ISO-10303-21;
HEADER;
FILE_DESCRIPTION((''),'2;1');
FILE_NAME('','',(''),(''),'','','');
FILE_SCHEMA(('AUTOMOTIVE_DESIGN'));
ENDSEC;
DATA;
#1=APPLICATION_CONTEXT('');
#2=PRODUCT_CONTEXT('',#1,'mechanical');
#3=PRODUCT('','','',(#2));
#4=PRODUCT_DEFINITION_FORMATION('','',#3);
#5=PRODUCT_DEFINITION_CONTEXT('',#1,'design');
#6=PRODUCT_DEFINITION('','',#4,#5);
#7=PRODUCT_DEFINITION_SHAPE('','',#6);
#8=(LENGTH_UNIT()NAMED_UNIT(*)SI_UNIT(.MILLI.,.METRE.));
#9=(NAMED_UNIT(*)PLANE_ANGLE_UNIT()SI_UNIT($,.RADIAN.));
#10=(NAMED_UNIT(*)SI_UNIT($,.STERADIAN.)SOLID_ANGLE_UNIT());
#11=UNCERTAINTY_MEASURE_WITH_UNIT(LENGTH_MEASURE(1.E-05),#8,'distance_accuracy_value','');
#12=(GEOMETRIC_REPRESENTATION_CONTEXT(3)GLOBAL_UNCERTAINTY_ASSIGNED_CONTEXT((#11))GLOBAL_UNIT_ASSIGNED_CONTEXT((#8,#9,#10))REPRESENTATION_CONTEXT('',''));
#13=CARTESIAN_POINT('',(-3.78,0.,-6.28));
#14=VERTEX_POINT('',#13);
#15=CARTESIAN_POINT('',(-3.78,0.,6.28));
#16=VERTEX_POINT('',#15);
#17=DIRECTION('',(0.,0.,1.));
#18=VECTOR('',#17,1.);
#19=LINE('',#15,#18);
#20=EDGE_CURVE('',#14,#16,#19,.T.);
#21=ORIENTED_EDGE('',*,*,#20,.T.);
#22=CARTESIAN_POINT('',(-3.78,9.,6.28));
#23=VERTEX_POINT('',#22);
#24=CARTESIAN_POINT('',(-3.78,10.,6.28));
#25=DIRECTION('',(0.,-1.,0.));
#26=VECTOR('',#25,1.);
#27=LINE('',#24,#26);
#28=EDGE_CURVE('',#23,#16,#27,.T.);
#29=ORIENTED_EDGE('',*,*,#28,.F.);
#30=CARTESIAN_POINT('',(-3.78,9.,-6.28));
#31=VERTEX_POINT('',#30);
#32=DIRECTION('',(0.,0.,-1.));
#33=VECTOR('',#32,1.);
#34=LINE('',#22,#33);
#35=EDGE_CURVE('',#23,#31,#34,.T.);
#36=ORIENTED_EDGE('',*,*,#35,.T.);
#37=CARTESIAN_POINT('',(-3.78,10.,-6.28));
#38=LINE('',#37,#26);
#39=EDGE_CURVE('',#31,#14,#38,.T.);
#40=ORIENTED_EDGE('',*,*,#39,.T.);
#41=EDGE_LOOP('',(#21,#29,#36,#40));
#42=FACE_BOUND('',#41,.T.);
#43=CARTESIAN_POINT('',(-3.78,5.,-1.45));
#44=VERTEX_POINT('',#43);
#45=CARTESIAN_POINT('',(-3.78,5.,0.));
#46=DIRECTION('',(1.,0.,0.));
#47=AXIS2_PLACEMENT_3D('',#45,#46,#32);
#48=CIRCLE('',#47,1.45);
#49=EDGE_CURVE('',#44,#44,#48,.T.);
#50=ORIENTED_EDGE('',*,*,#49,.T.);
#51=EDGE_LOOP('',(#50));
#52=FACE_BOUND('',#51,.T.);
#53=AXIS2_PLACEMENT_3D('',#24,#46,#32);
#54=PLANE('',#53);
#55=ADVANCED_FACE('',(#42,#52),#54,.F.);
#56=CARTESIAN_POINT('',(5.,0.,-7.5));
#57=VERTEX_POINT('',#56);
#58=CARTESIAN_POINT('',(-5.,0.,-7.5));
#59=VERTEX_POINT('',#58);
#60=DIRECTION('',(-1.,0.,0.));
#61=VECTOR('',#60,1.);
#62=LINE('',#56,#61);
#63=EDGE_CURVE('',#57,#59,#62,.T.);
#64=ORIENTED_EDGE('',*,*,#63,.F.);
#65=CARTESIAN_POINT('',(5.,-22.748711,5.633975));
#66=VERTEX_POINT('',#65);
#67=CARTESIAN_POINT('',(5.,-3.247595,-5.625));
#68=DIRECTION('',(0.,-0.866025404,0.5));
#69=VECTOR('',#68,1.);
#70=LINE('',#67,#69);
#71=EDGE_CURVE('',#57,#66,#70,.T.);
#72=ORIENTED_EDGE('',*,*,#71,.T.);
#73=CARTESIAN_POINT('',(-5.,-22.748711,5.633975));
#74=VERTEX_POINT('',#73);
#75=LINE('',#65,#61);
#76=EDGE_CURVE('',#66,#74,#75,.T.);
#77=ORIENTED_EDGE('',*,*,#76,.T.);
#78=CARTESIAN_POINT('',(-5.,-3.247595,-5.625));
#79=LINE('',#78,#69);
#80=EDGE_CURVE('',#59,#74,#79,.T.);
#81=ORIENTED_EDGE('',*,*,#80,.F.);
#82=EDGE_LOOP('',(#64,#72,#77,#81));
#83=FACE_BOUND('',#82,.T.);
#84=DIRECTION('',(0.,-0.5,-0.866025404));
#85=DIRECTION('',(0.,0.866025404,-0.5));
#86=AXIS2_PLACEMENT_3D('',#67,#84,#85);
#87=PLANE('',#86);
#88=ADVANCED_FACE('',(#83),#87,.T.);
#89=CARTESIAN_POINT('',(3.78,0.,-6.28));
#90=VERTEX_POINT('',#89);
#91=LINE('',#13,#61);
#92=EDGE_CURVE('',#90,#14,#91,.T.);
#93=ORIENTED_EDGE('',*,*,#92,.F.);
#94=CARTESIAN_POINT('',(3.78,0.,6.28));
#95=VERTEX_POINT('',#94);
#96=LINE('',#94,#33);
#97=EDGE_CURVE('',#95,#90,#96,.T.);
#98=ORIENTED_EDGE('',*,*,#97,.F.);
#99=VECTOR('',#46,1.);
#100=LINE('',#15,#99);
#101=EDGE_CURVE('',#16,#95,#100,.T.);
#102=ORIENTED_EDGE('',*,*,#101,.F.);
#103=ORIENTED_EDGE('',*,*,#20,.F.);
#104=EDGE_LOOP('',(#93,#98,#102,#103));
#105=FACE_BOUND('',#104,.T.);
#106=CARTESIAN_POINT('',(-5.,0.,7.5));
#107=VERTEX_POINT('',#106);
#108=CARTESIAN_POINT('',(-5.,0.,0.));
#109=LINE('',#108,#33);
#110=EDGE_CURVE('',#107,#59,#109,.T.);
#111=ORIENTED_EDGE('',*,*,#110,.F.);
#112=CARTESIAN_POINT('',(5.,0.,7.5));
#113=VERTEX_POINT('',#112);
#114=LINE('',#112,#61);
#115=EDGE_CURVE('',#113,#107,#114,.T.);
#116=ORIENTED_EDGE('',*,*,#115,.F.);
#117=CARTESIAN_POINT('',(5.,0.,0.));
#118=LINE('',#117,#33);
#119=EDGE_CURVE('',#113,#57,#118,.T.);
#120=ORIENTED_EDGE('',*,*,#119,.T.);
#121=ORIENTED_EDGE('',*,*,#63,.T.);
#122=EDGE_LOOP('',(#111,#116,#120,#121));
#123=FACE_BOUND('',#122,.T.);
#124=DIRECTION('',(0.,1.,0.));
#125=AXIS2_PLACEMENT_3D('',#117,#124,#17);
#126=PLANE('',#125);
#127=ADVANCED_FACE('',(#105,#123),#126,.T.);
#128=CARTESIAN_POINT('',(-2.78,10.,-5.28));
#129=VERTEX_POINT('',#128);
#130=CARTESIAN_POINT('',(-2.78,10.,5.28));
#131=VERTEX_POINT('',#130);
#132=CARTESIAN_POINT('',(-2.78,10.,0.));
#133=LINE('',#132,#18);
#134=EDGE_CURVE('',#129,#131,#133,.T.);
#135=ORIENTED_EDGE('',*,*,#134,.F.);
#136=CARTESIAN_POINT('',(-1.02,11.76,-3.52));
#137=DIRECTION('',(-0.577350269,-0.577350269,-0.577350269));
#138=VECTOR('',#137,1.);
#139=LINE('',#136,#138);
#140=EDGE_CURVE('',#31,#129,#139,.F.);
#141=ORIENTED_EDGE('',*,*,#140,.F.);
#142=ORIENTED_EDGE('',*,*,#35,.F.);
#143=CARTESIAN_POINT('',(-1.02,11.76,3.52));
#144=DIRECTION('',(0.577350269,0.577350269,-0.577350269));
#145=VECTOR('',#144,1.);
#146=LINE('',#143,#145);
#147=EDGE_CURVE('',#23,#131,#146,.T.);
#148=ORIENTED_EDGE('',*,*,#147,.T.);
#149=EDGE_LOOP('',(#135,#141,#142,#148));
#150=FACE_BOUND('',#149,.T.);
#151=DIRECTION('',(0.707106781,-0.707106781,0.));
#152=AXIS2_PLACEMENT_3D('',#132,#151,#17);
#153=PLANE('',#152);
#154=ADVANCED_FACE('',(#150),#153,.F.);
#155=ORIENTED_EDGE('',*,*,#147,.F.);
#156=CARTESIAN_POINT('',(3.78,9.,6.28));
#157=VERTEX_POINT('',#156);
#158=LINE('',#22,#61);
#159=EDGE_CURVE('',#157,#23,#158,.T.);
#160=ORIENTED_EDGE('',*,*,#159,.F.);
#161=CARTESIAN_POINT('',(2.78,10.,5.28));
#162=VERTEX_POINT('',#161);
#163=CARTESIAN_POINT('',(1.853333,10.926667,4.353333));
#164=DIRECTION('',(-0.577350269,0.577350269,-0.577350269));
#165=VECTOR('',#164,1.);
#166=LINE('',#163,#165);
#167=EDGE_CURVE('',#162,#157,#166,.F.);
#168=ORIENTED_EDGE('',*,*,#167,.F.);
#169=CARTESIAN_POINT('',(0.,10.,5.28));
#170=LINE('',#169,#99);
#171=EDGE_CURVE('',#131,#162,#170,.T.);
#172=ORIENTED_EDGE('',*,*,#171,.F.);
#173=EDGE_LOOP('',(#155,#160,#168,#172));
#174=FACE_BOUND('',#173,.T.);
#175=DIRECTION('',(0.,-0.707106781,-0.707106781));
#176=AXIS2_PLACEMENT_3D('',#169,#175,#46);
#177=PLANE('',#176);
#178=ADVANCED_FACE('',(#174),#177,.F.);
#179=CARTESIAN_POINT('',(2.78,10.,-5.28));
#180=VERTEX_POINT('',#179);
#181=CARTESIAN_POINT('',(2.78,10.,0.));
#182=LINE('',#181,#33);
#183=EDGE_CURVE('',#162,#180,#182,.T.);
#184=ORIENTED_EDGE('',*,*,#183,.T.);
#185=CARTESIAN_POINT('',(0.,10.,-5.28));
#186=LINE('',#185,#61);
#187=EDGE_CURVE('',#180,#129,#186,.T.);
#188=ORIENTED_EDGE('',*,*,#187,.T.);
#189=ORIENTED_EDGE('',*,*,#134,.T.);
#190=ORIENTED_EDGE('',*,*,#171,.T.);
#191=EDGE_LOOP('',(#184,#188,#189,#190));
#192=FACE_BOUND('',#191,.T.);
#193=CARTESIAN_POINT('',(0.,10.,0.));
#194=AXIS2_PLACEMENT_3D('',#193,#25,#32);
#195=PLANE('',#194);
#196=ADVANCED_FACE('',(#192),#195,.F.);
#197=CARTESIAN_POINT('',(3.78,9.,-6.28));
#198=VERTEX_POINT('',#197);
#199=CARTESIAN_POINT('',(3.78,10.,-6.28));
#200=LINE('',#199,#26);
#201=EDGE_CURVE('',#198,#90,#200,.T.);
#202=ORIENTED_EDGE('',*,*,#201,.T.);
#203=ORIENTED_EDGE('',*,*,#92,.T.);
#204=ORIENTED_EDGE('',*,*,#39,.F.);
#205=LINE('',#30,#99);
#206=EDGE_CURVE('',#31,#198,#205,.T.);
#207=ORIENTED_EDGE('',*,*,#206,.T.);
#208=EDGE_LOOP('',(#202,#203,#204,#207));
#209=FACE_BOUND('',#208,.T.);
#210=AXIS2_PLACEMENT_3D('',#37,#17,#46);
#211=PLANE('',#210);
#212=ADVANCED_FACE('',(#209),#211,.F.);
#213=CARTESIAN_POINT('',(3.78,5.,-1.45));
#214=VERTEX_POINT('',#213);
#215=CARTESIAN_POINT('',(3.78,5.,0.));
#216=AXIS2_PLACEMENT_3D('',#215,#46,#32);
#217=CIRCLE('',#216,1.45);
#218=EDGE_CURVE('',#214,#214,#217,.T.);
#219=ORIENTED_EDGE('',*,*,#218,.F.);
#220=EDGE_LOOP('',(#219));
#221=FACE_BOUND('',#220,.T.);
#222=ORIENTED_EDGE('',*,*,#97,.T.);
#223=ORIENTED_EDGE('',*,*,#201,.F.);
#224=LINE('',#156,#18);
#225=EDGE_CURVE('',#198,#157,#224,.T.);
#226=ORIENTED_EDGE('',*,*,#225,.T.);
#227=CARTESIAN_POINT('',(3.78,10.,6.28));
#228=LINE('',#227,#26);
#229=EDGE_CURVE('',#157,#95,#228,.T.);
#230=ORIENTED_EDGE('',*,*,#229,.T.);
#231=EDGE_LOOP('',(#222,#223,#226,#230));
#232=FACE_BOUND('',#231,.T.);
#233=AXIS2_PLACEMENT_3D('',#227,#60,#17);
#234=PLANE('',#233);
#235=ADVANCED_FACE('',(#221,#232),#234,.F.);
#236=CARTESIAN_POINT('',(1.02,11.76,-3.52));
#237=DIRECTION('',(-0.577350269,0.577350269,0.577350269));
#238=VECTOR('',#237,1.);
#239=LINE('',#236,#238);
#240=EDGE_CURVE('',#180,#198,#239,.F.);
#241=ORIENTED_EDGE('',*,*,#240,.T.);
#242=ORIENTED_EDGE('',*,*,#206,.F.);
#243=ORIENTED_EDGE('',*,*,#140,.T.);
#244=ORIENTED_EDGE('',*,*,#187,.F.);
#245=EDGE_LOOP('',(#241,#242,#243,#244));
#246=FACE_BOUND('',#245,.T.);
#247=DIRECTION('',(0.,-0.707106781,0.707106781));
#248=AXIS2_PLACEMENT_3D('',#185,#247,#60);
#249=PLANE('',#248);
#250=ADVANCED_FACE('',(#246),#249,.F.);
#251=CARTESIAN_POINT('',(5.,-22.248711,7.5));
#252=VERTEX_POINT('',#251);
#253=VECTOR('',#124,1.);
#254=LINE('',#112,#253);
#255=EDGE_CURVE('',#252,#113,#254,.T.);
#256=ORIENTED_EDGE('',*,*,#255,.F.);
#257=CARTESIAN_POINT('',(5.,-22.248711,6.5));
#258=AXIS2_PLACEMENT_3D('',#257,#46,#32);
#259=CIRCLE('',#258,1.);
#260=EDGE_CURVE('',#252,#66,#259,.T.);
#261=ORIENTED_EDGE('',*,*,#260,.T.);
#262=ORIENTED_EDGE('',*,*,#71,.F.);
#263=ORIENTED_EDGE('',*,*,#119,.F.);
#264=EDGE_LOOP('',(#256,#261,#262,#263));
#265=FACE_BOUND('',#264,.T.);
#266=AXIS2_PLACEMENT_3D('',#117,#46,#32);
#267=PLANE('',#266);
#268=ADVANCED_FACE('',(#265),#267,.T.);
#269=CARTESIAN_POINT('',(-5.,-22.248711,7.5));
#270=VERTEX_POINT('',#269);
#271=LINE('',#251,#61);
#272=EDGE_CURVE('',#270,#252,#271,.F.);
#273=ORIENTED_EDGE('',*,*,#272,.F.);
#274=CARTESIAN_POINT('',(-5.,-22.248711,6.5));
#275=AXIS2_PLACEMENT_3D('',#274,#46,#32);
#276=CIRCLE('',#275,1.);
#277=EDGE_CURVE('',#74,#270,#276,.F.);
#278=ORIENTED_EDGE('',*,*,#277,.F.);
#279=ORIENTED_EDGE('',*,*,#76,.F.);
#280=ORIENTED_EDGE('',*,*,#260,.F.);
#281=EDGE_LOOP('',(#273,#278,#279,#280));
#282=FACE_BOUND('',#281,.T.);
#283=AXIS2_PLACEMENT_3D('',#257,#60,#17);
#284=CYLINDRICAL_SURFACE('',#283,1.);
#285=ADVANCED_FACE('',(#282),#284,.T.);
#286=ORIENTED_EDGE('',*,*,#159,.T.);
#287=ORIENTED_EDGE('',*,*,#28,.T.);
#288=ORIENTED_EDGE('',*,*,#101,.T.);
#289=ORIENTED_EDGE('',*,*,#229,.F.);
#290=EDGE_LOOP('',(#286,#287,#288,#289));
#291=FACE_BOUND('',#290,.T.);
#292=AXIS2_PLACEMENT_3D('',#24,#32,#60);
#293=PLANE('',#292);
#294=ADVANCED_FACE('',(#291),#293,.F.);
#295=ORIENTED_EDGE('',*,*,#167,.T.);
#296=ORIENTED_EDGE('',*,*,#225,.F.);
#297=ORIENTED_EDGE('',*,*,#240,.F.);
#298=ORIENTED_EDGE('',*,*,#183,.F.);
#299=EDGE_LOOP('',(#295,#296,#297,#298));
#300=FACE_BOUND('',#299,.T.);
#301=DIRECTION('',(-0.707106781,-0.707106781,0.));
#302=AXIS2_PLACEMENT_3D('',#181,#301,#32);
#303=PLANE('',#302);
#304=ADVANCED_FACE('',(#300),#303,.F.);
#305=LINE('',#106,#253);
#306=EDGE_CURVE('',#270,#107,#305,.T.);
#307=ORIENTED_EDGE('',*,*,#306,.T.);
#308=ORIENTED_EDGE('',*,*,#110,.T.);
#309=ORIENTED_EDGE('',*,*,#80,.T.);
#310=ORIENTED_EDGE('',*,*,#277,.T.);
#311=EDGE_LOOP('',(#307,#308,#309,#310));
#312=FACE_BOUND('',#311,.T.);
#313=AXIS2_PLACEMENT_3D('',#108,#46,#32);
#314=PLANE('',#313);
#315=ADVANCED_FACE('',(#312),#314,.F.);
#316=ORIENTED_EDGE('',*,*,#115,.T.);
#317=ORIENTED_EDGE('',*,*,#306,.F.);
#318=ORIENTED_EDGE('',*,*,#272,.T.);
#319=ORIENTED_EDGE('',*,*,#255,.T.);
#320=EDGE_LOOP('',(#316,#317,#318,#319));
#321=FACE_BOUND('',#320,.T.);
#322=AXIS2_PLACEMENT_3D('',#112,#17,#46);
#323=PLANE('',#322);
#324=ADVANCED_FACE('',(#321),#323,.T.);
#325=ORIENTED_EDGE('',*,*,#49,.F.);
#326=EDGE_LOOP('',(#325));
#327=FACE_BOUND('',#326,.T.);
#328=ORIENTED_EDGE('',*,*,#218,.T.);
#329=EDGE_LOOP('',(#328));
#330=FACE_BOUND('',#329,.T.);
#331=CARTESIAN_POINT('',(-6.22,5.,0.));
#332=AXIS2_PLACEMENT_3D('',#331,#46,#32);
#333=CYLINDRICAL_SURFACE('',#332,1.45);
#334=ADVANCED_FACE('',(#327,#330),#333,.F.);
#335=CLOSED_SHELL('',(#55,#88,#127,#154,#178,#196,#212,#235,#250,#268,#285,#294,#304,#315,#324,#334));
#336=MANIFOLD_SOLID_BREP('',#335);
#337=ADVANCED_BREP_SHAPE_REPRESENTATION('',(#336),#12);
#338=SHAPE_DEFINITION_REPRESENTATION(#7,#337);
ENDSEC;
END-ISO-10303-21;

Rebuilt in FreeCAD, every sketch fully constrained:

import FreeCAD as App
import Part
import Sketcher

V = App.Vector
Q = App.Units.Quantity


def edges_at(feature, points):
    """Names of the edges that pass closest to the given points."""
    edges = feature.Shape.Edges
    near = lambda p: min(range(len(edges)), key=lambda i: edges[i].distToShape(Part.Vertex(*p))[0])
    return sorted({f"Edge{near(p) + 1}" for p in points})


def add_polygon(sketch, points):
    """Adds a closed chain of lines whose ends are joined by coincident constraints."""
    first, n = sketch.GeometryCount, len(points)
    for a, b in zip(points, points[1:] + points[:1]):
        sketch.addGeometry(Part.LineSegment(App.Vector(*a, 0), App.Vector(*b, 0)), False)
    for i in range(n):
        sketch.addConstraint(Sketcher.Constraint("Coincident", first + i, 2, first + (i + 1) % n, 1))

doc = App.newDocument("Part")
params = doc.addObject("Spreadsheet::Sheet", "Params")
for row, (alias, value) in enumerate([
    ("sketch1_width", "7.56 mm"),
    ("sketch1_height", "12.56 mm"),
    ("pad1_length", "10 mm"),
    ("chamfer_size", "1 mm"),
    ("sketch2_height", "15 mm"),
    ("pad2_length", "10 mm"),
    ("sketch3_diameter", "2.9 mm"),
    ("pocket1_length", "10 mm"),
    ("fillet_radius", "1 mm"),
], start=1):
    params.set(f"A{row}", alias)
    params.set(f"B{row}", "=" + value)
    params.setAlias(f"B{row}", alias)

body = doc.addObject("PartDesign::Body", "Body")

# Sketch on XZ plane
sketch1 = doc.addObject("Sketcher::SketchObject", "Sketch")
body.addObject(sketch1)
sketch1.AttachmentSupport = (doc.XZ_Plane, [""])
sketch1.MapMode = "FlatFace"
add_polygon(sketch1, [(-3.78, -6.28), (-3.78, 6.28), (3.78, 6.28), (3.78, -6.28)])  # lines 0-3
sketch1.addConstraint(Sketcher.Constraint("Vertical", 0))
sketch1.addConstraint(Sketcher.Constraint("Horizontal", 1))
sketch1.addConstraint(Sketcher.Constraint("Vertical", 2))
sketch1.addConstraint(Sketcher.Constraint("Horizontal", 3))
sketch1.addConstraint(Sketcher.Constraint("Symmetric", 0, 2, 2, 2, -1, 1))
sketch1.addConstraint(Sketcher.Constraint("DistanceX", 1, 1, 1, 2, Q("7.56 mm")))
sketch1.addConstraint(Sketcher.Constraint("DistanceY", 0, 1, 0, 2, Q("12.56 mm")))
sketch1.setExpression("Constraints[9]", "Params.sketch1_width")
sketch1.setExpression("Constraints[10]", "Params.sketch1_height")
pad1 = doc.addObject("PartDesign::Pad", "Pad")
body.addObject(pad1)
pad1.Profile = sketch1
pad1.setExpression("Length", "Params.pad1_length")
pad1.Reversed = True
doc.recompute()

chamfer = doc.addObject("PartDesign::Chamfer", "Chamfer")
body.addObject(chamfer)
chamfer.Base = (pad1, edges_at(pad1, [
    (3.78, 10, 0),
    (0, 10, -6.28),
    (-3.78, 10, 0),
    (0, 10, 6.28),
]))
chamfer.setExpression("Size", "Params.chamfer_size")

# Sketch on YZ plane
sketch2 = doc.addObject("Sketcher::SketchObject", "Sketch001")
body.addObject(sketch2)
sketch2.AttachmentSupport = (doc.YZ_Plane, [""])
sketch2.MapMode = "FlatFace"
add_polygon(sketch2, [(0, 7.5), (-25.980762, 7.5), (0, -7.5)])  # lines 0-2
sketch2.addConstraint(Sketcher.Constraint("Horizontal", 0))
sketch2.addConstraint(Sketcher.Constraint("Vertical", 2))
sketch2.addConstraint(Sketcher.Constraint("Symmetric", 1, 2, 2, 2, -1, 1))
sketch2.addConstraint(Sketcher.Constraint("DistanceY", 2, 1, 2, 2, Q("15 mm")))
sketch2.addConstraint(Sketcher.Constraint("Angle", 1, Q("-30 deg")))
sketch2.setExpression("Constraints[6]", "Params.sketch2_height")
pad2 = doc.addObject("PartDesign::Pad", "Pad001")
body.addObject(pad2)
pad2.Profile = sketch2
pad2.setExpression("Length", "Params.pad2_length")
pad2.Midplane = True

# Sketch on YZ plane
sketch3 = doc.addObject("Sketcher::SketchObject", "Sketch002")
body.addObject(sketch3)
sketch3.AttachmentSupport = (doc.YZ_Plane, [""])
sketch3.MapMode = "FlatFace"
sketch3.AttachmentOffset = App.Placement(V(0, 0, 3.78), App.Rotation())
sketch3.addGeometry(Part.Circle(V(5, 0, 0), V(0, 0, 1), 1.45), False)
sketch3.addConstraint(Sketcher.Constraint("PointOnObject", 0, 3, -1))
sketch3.addConstraint(Sketcher.Constraint("Diameter", 0, Q("2.9 mm")))
sketch3.addConstraint(Sketcher.Constraint("DistanceX", -1, 1, 0, 3, Q("5 mm")))
sketch3.setExpression("Constraints[1]", "Params.sketch3_diameter")
pocket1 = doc.addObject("PartDesign::Pocket", "Pocket")
body.addObject(pocket1)
pocket1.Profile = sketch3
pocket1.setExpression("Length", "Params.pocket1_length")
doc.recompute()

fillet = doc.addObject("PartDesign::Fillet", "Fillet")
body.addObject(fillet)
fillet.Base = (pocket1, edges_at(pocket1, [(0, -25.981, 7.5)]))
fillet.setExpression("Radius", "Params.fillet_radius")

doc.recompute()
